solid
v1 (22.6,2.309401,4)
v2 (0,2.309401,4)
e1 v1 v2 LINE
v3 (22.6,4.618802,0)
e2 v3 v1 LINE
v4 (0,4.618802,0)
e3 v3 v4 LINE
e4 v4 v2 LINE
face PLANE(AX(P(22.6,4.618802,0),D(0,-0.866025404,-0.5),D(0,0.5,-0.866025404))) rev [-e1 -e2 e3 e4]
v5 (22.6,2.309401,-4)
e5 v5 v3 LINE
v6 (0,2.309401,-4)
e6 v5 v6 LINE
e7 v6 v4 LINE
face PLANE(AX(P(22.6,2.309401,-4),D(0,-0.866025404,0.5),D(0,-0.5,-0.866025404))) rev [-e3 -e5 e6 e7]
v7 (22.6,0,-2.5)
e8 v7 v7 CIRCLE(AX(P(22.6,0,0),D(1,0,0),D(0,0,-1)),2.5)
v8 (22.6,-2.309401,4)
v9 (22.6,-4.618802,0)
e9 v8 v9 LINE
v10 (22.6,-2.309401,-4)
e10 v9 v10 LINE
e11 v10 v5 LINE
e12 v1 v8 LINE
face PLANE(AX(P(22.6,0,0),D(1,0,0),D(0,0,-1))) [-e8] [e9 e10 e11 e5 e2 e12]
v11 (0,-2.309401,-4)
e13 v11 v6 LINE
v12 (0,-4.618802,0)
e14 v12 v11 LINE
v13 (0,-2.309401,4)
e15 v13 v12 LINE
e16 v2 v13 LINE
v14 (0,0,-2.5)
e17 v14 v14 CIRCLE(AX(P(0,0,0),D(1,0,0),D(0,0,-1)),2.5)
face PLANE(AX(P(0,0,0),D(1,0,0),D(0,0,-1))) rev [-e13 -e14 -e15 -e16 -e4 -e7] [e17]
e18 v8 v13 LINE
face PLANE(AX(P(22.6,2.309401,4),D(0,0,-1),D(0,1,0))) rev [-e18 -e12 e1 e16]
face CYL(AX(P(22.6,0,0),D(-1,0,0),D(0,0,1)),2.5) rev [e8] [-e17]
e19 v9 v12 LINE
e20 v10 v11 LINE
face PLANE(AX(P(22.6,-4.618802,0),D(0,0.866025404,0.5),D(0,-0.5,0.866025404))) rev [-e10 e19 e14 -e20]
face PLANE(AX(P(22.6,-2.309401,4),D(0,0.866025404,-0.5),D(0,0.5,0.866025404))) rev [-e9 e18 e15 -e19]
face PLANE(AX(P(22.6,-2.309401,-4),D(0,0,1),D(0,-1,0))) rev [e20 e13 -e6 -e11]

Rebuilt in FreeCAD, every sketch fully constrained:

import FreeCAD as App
import Part
import Sketcher
from FreeCAD import Vector
Q = App.Units.Quantity


def add_polygon(sketch, points):
    """Adds a closed chain of lines whose ends are joined by coincident constraints."""
    first, n = sketch.GeometryCount, len(points)
    for a, b in zip(points, points[1:] + points[:1]):
        sketch.addGeometry(Part.LineSegment(App.Vector(*a, 0), App.Vector(*b, 0)), False)
    for i in range(n):
        sketch.addConstraint(Sketcher.Constraint("Coincident", first + i, 2, first + (i + 1) % n, 1))

doc = App.newDocument("Part")
body = doc.addObject("PartDesign::Body", "Body")

# Sketch on YZ plane
sketch1 = body.newObject("Sketcher::SketchObject", "Sketch")
sketch1.AttachmentSupport = (doc.getObject("YZ_Plane"), [""])
sketch1.MapMode = "FlatFace"
add_polygon(sketch1, [(4.6, 0), (2.3, 4), (-2.3, 4), (-4.6, 0), (-2.3, -4), (2.3, -4)])  # lines 0-5
sketch1.addGeometry(Part.Circle(Vector(0, 0, 0), Vector(0, 0, 1), 2.5), False)  # 6
sketch1.addConstraint([
    Sketcher.Constraint("Horizontal", 1),
    Sketcher.Constraint("Horizontal", 4),
    Sketcher.Constraint("Coincident", 6, 3, -1, 1),
    Sketcher.Constraint("Symmetric", 0, 2, 3, 2, -1, 1),
    Sketcher.Constraint("Symmetric", 2, 2, 5, 2, -1, 1),
    Sketcher.Constraint("PointOnObject", 2, 2, -1),
    Sketcher.Constraint("Parallel", 2, 5),
    Sketcher.Constraint("Vertical", 1, 2, 3, 2),
    Sketcher.Constraint("Diameter", 6, Q("5 mm")),
    Sketcher.Constraint("Angle", 0, Q("120 deg")),
    Sketcher.Constraint("DistanceY", -1, 1, 0, 2, Q("4 mm")),
    Sketcher.Constraint("DistanceX", -1, 1, 0, 2, Q("2.309401 mm")),
])
pad1 = body.newObject("PartDesign::Pad", "Pad")
pad1.Profile = sketch1
pad1.Length = 22.6

doc.recompute()
